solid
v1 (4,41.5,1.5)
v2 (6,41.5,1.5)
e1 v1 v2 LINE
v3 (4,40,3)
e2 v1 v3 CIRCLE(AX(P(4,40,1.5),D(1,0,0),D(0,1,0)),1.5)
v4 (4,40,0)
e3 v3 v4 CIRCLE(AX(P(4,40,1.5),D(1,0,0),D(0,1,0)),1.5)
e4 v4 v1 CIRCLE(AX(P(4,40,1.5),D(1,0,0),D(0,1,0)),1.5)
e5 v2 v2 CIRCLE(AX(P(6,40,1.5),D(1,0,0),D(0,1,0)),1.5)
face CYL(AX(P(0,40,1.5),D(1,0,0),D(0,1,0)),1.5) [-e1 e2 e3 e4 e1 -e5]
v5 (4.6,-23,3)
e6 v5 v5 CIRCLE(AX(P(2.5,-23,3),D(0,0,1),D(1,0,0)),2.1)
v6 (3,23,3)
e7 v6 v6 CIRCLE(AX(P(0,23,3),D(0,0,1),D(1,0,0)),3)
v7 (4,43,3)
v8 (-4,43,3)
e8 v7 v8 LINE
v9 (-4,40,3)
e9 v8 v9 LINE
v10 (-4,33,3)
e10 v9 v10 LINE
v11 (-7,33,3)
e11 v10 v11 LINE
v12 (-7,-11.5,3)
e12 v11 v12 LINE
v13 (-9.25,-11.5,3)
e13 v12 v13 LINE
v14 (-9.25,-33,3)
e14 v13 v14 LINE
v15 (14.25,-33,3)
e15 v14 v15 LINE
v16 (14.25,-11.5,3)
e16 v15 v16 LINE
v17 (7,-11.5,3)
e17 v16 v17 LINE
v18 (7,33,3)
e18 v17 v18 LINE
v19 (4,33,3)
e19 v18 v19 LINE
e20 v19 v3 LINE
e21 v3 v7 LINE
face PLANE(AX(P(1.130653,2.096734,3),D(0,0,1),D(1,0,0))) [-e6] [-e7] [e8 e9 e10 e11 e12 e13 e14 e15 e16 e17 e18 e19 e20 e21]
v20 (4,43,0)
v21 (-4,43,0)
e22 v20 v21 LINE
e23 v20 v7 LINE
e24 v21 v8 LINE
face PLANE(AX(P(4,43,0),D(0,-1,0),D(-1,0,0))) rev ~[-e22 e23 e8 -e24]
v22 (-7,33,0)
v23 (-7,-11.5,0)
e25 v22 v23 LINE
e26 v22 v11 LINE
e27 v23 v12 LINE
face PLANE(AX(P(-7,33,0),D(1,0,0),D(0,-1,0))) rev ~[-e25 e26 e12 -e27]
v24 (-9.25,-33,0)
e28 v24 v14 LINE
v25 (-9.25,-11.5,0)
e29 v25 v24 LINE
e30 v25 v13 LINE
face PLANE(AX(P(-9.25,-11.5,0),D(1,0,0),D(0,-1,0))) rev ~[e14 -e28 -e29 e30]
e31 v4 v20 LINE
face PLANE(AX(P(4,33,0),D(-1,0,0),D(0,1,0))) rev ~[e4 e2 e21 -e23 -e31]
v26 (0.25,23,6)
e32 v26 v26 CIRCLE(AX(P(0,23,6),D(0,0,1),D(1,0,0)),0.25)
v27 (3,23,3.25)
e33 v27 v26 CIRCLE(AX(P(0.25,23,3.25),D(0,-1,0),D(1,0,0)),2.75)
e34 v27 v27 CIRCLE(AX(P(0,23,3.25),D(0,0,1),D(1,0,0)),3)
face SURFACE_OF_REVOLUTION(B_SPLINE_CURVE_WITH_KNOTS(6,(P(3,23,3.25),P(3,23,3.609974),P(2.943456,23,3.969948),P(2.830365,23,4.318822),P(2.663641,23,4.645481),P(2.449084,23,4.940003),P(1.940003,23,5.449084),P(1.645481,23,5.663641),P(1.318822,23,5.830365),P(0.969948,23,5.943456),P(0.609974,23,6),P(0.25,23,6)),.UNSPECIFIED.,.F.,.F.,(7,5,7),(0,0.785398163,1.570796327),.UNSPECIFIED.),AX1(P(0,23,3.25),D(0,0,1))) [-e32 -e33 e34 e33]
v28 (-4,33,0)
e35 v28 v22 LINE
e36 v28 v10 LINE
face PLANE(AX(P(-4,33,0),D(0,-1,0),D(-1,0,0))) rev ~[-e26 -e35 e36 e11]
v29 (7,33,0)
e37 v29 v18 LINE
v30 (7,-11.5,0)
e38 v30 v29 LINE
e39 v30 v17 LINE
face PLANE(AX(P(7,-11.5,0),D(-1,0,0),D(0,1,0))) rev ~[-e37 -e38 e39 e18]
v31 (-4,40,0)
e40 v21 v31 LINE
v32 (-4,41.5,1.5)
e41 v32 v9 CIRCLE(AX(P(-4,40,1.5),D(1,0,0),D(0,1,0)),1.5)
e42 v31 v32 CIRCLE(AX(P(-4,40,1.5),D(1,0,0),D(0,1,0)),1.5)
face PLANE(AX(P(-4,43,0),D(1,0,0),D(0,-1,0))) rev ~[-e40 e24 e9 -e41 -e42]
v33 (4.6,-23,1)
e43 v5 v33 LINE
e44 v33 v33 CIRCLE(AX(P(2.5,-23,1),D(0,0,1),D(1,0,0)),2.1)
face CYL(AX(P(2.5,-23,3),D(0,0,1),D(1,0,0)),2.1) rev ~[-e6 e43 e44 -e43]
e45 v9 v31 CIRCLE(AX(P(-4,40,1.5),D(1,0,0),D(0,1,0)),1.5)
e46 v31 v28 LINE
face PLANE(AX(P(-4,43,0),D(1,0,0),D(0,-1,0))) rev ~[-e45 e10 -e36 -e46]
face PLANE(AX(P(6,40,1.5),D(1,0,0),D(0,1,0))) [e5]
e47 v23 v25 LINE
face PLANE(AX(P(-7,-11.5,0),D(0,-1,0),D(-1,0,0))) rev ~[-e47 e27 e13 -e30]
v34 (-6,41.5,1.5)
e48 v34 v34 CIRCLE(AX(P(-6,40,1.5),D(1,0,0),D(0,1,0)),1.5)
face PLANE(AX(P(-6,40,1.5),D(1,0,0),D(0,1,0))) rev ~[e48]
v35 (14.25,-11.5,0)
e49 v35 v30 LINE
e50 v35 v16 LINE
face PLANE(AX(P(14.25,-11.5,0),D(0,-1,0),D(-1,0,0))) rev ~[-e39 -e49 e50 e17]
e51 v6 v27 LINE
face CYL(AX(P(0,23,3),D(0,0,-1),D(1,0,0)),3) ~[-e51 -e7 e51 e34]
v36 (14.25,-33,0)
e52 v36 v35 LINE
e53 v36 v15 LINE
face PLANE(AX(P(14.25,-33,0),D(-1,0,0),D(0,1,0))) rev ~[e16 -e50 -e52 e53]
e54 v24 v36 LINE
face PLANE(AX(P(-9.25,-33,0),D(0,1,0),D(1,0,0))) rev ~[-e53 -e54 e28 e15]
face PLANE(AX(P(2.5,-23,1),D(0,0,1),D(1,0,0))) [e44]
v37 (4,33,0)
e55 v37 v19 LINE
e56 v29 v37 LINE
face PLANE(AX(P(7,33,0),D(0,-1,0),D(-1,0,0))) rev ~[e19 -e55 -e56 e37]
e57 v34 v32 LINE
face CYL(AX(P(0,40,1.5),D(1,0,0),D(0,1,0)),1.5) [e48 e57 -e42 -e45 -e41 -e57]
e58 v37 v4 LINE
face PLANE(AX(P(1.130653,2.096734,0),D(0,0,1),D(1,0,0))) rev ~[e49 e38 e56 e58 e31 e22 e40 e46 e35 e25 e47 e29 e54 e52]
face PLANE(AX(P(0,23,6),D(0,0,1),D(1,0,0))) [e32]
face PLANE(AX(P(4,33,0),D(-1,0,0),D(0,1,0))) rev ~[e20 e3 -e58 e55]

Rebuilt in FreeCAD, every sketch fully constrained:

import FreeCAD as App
import Part
import Sketcher
from FreeCAD import Vector


def edges_at(feature, points):
    """Names of the edges that pass closest to the given points."""
    edges = feature.Shape.Edges
    near = lambda p: min(range(len(edges)), key=lambda i: edges[i].distToShape(Part.Vertex(*p))[0])
    return sorted({f"Edge{near(p) + 1}" for p in points})

doc = App.newDocument("Part")
body = doc.addObject("PartDesign::Body", "Body")

# Sketch on XY plane
sketch1 = body.newObject("Sketcher::SketchObject", "Sketch")
sketch1.AttachmentSupport = (doc.getObject("XY_Plane"), [""])
sketch1.MapMode = "FlatFace"
sketch1.addGeometry(Part.LineSegment(Vector(-9.2, -33, 0), Vector(14.2, -33, 0)), False)
sketch1.addGeometry(Part.LineSegment(Vector(14.2, -33, 0), Vector(14.2, -11.5, 0)), False)
sketch1.addGeometry(Part.LineSegment(Vector(14.2, -11.5, 0), Vector(7, -11.5, 0)), False)
sketch1.addGeometry(Part.LineSegment(Vector(7, -11.5, 0), Vector(7, 33, 0)), False)
sketch1.addGeometry(Part.LineSegment(Vector(7, 33, 0), Vector(4, 33, 0)), False)
sketch1.addGeometry(Part.LineSegment(Vector(4, 33, 0), Vector(4, 43, 0)), False)
sketch1.addGeometry(Part.LineSegment(Vector(4, 43, 0), Vector(-4, 43, 0)), False)
sketch1.addGeometry(Part.LineSegment(Vector(-4, 43, 0), Vector(-4, 33, 0)), False)
sketch1.addGeometry(Part.LineSegment(Vector(-4, 33, 0), Vector(-7, 33, 0)), False)
sketch1.addGeometry(Part.LineSegment(Vector(-7, 33, 0), Vector(-7, -11.5, 0)), False)
sketch1.addGeometry(Part.LineSegment(Vector(-7, -11.5, 0), Vector(-9.2, -11.5, 0)), False)
sketch1.addGeometry(Part.LineSegment(Vector(-9.2, -11.5, 0), Vector(-9.2, -33, 0)), False)
sketch1.addConstraint(Sketcher.Constraint("Coincident", 0, 2, 1, 1))
sketch1.addConstraint(Sketcher.Constraint("Coincident", 1, 2, 2, 1))
sketch1.addConstraint(Sketcher.Constraint("Coincident", 2, 2, 3, 1))
sketch1.addConstraint(Sketcher.Constraint("Coincident", 3, 2, 4, 1))
sketch1.addConstraint(Sketcher.Constraint("Coincident", 4, 2, 5, 1))
sketch1.addConstraint(Sketcher.Constraint("Coincident", 5, 2, 6, 1))
sketch1.addConstraint(Sketcher.Constraint("Coincident", 6, 2, 7, 1))
sketch1.addConstraint(Sketcher.Constraint("Coincident", 7, 2, 8, 1))
sketch1.addConstraint(Sketcher.Constraint("Coincident", 8, 2, 9, 1))
sketch1.addConstraint(Sketcher.Constraint("Coincident", 9, 2, 10, 1))
sketch1.addConstraint(Sketcher.Constraint("Coincident", 10, 2, 11, 1))
sketch1.addConstraint(Sketcher.Constraint("Coincident", 11, 2, 0, 1))
sketch1.addConstraint(Sketcher.Constraint("Horizontal", 0))
sketch1.addConstraint(Sketcher.Constraint("Vertical", 1))
sketch1.addConstraint(Sketcher.Constraint("Horizontal", 2))
sketch1.addConstraint(Sketcher.Constraint("Vertical", 3))
sketch1.addConstraint(Sketcher.Constraint("Horizontal", 4))
sketch1.addConstraint(Sketcher.Constraint("Vertical", 5))
sketch1.addConstraint(Sketcher.Constraint("Horizontal", 6))
sketch1.addConstraint(Sketcher.Constraint("Vertical", 7))
sketch1.addConstraint(Sketcher.Constraint("Horizontal", 8))
sketch1.addConstraint(Sketcher.Constraint("Vertical", 9))
sketch1.addConstraint(Sketcher.Constraint("Horizontal", 10))
sketch1.addConstraint(Sketcher.Constraint("Vertical", 11))
sketch1.addConstraint(Sketcher.Constraint("Symmetric", 4, 2, 7, 2, -2))
sketch1.addConstraint(Sketcher.Constraint("Symmetric", 2, 2, 9, 2, -2))
sketch1.addConstraint(Sketcher.Constraint("DistanceX", 4, 2, 4, 1, 3.0))
sketch1.addConstraint(Sketcher.Constraint("DistanceX", 6, 2, 6, 1, 8.0))
sketch1.addConstraint(Sketcher.Constraint("DistanceY", 5, 1, 5, 2, 10.0))
sketch1.addConstraint(Sketcher.Constraint("DistanceX", 0, 1, 0, 2, 23.5))
sketch1.addConstraint(Sketcher.Constraint("DistanceY", 1, 1, 1, 2, 21.5))
sketch1.addConstraint(Sketcher.Constraint("DistanceY", 3, 1, 3, 2, 44.5))
sketch1.addConstraint(Sketcher.Constraint("DistanceY", 0, 2, -1, 1, 33.0))
sketch1.addConstraint(Sketcher.Constraint("DistanceX", 2, 2, 2, 1, 7.25))
pad1 = body.newObject("PartDesign::Pad", "Pad")
pad1.Profile = sketch1
pad1.Length = 3

# Sketch on YZ plane
sketch2 = body.newObject("Sketcher::SketchObject", "Sketch001")
sketch2.AttachmentSupport = (doc.getObject("YZ_Plane"), [""])
sketch2.MapMode = "FlatFace"
sketch2.addGeometry(Part.Circle(Vector(40, 1.5, 0), Vector(0, 0, 1), 1.5), False)
sketch2.addConstraint(Sketcher.Constraint("Diameter", 0, 3.0))
sketch2.addConstraint(Sketcher.Constraint("DistanceX", -1, 1, 0, 3, 40.0))
sketch2.addConstraint(Sketcher.Constraint("DistanceY", -1, 1, 0, 3, 1.5))
pad2 = body.newObject("PartDesign::Pad", "Pad001")
pad2.Profile = sketch2
pad2.Length = 12
pad2.Midplane = True

# Sketch on XY plane
sketch3 = body.newObject("Sketcher::SketchObject", "Sketch002")
sketch3.AttachmentSupport = (doc.getObject("XY_Plane"), [""])
sketch3.MapMode = "FlatFace"
sketch3.AttachmentOffset = App.Placement(Vector(0, 0, 3), App.Rotation())
sketch3.addGeometry(Part.Circle(Vector(2.5, -23, 0), Vector(0, 0, 1), 2.1), False)
sketch3.addConstraint(Sketcher.Constraint("Diameter", 0, 4.2))
sketch3.addConstraint(Sketcher.Constraint("DistanceY", 0, 3, -1, 1, 23.0))
sketch3.addConstraint(Sketcher.Constraint("DistanceX", -1, 1, 0, 3, 2.5))
pocket1 = body.newObject("PartDesign::Pocket", "Pocket")
pocket1.Profile = sketch3
pocket1.Length = 2

# Sketch on XY plane
sketch4 = body.newObject("Sketcher::SketchObject", "Sketch003")
sketch4.AttachmentSupport = (doc.getObject("XY_Plane"), [""])
sketch4.MapMode = "FlatFace"
sketch4.AttachmentOffset = App.Placement(Vector(0, 0, 3), App.Rotation())
sketch4.addGeometry(Part.Circle(Vector(0, 23, 0), Vector(0, 0, 1), 3), False)
sketch4.addConstraint(Sketcher.Constraint("PointOnObject", 0, 3, -2))
sketch4.addConstraint(Sketcher.Constraint("Diameter", 0, 6.0))
sketch4.addConstraint(Sketcher.Constraint("DistanceY", -1, 1, 0, 3, 23.0))
pad3 = body.newObject("PartDesign::Pad", "Pad002")
pad3.Profile = sketch4
pad3.Length = 3
doc.recompute()

fillet = body.newObject("PartDesign::Fillet", "Fillet")
fillet.Base = (pad3, edges_at(pad3, [(-3, 23, 6)]))
fillet.Radius = 2.75

doc.recompute()
